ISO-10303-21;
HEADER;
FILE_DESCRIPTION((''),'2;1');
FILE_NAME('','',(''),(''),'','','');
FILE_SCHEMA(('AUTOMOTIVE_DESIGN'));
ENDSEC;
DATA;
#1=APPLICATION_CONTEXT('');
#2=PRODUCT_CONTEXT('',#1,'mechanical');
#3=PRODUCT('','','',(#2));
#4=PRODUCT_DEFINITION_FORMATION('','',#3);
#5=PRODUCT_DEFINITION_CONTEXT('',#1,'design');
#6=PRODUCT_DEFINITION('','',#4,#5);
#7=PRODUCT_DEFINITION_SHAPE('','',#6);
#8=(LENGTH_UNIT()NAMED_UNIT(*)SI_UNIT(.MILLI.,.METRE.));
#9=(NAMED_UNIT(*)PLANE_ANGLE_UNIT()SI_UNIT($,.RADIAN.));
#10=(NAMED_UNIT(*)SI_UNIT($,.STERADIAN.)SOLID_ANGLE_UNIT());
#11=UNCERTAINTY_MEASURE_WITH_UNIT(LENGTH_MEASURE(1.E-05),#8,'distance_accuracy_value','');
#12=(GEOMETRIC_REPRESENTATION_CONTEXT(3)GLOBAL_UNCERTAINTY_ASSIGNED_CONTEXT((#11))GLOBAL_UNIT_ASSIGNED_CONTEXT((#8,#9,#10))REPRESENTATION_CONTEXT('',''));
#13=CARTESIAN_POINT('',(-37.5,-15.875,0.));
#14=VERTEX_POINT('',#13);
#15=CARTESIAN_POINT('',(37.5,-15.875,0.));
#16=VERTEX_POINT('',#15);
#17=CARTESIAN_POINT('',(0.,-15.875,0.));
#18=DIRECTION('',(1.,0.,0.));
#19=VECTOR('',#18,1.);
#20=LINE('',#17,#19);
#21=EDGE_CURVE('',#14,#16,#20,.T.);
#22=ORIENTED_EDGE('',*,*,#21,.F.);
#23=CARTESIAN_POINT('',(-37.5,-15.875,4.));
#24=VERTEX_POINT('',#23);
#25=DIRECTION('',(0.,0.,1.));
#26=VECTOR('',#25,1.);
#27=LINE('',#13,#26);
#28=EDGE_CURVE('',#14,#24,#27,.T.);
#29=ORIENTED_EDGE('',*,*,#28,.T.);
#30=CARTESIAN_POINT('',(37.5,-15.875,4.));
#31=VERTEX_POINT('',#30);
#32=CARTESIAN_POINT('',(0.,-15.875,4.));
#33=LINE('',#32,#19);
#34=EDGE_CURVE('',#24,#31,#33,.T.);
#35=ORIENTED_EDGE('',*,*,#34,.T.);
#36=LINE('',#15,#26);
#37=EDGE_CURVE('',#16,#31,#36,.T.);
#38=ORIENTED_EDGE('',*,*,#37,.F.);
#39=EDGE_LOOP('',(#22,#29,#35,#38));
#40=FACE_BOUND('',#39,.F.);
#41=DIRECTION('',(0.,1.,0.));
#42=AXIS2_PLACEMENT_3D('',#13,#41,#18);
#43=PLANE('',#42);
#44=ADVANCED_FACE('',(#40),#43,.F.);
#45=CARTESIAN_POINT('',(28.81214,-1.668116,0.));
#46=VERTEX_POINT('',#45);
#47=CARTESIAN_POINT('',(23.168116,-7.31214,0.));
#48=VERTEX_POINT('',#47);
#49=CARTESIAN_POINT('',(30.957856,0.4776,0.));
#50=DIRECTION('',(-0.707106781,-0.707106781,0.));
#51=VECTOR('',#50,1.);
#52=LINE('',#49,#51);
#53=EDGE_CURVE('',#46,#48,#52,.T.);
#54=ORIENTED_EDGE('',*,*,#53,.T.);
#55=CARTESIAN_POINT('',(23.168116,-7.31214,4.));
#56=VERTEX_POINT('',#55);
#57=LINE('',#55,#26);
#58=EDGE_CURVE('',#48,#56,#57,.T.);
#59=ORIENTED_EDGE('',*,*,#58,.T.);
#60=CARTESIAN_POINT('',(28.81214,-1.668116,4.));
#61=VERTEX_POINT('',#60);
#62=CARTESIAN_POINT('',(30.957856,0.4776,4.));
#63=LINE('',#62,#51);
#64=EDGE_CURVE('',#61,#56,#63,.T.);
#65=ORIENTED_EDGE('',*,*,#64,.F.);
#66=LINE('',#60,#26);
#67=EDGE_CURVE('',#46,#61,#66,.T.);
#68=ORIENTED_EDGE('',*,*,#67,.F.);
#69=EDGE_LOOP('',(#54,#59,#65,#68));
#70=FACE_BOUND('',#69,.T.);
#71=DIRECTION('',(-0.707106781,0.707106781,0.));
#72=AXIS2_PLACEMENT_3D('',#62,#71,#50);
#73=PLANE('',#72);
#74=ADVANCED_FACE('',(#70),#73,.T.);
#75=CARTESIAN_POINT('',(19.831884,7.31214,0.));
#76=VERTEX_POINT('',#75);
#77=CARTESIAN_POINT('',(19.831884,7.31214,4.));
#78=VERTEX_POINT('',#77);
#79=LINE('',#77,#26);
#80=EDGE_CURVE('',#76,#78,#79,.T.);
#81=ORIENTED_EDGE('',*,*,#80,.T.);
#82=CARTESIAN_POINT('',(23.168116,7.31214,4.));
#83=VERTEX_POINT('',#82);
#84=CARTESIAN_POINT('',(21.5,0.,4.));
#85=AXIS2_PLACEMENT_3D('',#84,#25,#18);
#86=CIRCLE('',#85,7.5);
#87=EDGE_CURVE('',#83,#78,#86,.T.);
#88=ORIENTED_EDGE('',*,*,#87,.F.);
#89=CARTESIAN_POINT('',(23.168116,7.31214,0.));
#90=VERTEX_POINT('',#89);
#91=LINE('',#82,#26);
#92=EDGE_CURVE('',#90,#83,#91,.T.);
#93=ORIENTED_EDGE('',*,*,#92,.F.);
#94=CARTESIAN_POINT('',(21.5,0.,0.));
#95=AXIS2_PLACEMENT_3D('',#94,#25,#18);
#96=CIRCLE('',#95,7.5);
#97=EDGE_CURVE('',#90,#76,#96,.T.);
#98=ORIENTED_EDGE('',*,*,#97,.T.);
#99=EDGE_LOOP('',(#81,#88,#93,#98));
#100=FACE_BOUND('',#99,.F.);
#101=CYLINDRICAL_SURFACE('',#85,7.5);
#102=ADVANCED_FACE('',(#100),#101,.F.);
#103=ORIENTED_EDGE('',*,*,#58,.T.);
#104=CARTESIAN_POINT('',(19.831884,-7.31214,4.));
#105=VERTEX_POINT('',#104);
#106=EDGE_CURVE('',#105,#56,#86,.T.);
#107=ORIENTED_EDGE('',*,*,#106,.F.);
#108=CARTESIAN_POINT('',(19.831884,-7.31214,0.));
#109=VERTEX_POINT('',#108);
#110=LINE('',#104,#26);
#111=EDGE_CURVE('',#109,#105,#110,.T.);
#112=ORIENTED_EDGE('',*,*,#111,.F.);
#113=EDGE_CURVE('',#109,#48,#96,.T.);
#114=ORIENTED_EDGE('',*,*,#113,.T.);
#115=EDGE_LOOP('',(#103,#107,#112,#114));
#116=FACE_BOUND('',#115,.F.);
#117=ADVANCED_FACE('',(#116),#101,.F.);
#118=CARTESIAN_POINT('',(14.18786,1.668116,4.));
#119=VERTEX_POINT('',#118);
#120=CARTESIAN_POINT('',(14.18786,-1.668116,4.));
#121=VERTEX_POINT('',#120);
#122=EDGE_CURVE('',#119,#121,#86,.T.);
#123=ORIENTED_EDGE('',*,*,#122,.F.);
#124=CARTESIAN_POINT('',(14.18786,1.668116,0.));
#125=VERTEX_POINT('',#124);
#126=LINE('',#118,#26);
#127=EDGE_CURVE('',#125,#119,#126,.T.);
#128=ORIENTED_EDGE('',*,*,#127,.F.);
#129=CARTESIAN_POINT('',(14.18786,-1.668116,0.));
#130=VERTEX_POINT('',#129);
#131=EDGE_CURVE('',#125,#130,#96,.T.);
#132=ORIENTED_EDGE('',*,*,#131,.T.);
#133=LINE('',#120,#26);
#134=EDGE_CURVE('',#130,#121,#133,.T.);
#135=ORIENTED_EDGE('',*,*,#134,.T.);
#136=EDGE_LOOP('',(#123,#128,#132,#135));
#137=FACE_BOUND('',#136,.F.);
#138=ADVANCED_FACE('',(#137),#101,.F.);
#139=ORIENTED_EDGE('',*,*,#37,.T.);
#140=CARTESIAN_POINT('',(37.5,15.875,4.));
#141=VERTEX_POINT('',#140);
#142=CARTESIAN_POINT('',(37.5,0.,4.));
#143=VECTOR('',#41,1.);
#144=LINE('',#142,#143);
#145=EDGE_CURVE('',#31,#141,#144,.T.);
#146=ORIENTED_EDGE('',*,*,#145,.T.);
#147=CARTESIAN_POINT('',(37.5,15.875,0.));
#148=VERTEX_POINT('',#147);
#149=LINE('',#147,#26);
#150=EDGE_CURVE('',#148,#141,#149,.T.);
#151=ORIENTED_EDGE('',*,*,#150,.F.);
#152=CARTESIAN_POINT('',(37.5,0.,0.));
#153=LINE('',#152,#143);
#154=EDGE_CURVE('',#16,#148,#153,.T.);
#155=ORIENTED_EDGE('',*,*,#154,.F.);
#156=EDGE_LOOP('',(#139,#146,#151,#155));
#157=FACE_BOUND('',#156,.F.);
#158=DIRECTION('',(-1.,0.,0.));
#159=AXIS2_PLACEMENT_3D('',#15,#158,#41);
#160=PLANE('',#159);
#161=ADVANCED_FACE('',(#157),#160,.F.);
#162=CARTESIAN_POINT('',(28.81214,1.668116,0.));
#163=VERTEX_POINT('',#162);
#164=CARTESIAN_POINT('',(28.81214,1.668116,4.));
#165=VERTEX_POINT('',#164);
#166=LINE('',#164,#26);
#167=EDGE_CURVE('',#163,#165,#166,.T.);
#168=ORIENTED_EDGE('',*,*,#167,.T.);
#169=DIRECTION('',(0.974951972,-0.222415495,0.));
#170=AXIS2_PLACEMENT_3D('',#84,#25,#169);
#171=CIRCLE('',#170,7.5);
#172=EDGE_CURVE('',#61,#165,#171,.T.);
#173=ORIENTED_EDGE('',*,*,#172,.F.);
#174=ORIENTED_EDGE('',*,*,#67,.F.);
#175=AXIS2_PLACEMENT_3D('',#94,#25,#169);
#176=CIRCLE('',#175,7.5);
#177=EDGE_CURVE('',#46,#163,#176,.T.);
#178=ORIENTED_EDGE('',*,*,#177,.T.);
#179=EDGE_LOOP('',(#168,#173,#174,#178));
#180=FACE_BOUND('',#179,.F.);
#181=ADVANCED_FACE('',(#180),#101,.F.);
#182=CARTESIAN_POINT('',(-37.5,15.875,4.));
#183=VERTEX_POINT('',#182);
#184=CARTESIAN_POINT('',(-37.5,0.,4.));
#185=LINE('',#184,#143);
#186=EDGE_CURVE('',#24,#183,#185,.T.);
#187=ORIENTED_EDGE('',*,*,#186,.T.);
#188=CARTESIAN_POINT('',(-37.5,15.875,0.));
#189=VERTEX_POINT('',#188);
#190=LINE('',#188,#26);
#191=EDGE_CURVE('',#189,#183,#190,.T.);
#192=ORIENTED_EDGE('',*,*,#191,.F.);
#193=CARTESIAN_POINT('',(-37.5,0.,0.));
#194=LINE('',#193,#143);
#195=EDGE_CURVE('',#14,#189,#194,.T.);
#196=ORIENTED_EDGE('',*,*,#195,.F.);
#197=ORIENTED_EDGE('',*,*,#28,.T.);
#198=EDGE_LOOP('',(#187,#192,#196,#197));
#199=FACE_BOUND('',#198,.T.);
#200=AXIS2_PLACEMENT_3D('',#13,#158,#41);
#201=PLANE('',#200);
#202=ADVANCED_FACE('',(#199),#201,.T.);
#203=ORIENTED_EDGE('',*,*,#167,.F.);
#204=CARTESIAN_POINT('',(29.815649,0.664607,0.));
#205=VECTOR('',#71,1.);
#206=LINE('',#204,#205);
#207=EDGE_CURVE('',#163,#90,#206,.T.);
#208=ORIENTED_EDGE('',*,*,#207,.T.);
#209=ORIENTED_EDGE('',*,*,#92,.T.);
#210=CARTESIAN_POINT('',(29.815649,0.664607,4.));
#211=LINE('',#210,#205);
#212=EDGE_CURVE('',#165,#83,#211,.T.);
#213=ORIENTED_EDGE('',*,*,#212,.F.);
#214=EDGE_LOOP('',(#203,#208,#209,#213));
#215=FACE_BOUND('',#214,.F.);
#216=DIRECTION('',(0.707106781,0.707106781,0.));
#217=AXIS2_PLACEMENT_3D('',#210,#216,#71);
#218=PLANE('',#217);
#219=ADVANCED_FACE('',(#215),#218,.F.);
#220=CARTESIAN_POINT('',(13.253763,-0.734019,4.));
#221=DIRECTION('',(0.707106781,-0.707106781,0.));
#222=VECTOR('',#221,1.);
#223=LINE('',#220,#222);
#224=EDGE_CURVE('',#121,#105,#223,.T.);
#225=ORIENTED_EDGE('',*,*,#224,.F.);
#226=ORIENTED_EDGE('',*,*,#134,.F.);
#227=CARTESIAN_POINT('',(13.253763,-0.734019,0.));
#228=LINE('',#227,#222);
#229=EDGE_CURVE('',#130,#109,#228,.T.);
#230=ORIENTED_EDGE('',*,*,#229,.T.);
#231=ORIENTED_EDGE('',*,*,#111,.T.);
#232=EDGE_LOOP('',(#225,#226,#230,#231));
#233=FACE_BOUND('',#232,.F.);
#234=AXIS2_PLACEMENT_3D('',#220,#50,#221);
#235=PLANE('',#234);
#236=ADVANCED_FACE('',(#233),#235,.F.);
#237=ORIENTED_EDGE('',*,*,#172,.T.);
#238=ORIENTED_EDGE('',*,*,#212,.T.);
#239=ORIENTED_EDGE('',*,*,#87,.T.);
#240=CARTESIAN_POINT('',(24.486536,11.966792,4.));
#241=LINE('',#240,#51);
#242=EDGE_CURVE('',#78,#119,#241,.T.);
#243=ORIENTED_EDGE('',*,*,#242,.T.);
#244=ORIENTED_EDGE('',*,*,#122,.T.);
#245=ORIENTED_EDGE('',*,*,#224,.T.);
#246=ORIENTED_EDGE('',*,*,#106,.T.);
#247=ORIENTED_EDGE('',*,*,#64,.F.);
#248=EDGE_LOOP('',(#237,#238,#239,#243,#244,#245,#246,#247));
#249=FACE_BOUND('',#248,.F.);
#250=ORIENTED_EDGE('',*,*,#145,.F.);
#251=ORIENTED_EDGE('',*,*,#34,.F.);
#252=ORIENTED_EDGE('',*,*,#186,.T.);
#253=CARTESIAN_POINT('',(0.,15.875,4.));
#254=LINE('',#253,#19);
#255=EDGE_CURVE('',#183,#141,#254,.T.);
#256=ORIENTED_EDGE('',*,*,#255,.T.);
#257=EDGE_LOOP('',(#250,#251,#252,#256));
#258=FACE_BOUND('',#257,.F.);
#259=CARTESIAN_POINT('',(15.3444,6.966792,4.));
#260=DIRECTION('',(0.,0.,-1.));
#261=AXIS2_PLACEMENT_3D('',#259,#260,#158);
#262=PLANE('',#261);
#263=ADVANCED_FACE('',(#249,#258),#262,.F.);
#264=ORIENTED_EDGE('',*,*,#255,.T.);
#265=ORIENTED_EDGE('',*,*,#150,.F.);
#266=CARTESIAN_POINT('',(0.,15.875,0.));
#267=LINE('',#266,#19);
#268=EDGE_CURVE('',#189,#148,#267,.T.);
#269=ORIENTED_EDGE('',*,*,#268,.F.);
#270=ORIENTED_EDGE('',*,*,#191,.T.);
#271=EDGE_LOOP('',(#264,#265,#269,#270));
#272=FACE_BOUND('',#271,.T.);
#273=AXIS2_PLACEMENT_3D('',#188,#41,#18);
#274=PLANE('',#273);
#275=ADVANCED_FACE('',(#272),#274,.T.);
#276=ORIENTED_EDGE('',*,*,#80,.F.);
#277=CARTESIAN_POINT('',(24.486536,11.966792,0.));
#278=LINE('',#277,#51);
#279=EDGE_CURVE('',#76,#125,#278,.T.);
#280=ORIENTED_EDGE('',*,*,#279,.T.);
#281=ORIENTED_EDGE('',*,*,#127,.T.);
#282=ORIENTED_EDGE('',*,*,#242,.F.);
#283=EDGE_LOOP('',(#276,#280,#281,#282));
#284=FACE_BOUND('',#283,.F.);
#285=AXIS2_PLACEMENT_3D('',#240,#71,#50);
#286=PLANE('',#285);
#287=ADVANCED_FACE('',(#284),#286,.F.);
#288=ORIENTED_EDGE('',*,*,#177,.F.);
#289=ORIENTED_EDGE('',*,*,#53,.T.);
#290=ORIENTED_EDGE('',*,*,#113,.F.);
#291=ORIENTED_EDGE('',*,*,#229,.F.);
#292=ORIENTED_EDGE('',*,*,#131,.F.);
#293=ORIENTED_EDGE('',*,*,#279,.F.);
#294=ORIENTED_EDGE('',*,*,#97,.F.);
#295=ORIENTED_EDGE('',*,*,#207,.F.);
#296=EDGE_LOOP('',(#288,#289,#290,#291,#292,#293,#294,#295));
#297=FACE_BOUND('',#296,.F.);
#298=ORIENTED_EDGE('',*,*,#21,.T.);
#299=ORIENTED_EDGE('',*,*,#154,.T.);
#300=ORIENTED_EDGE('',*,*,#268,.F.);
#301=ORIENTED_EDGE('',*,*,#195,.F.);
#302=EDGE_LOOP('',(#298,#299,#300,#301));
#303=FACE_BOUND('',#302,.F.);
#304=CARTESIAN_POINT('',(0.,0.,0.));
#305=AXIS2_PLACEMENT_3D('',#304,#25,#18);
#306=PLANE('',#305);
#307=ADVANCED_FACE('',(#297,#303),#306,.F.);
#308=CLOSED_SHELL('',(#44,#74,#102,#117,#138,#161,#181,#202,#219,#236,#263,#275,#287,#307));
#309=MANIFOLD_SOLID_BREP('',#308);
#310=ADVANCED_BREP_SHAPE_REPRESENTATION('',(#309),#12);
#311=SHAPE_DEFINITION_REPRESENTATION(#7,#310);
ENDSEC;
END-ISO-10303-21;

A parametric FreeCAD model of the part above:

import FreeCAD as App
import Part
import Sketcher


def add_polygon(sketch, points):
    """Adds a closed chain of lines whose ends are joined by coincident constraints."""
    first, n = sketch.GeometryCount, len(points)
    for a, b in zip(points, points[1:] + points[:1]):
        sketch.addGeometry(Part.LineSegment(App.Vector(*a, 0), App.Vector(*b, 0)), False)
    for i in range(n):
        sketch.addConstraint(Sketcher.Constraint("Coincident", first + i, 2, first + (i + 1) % n, 1))

doc = App.newDocument("Part")
body = doc.addObject("PartDesign::Body", "Body")

sketch1 = doc.addObject("Sketcher::SketchObject", "Sketch")
body.addObject(sketch1)
sketch1.AttachmentSupport = (doc.XY_Plane, [""])
sketch1.MapMode = "FlatFace"
add_polygon(sketch1, [(-37.5, 15.875), (-37.5, -15.875), (37.5, -15.875), (37.5, 15.875)])
sketch1.addConstraint([
    Sketcher.Constraint("Vertical", 0),
    Sketcher.Constraint("Horizontal", 1),
    Sketcher.Constraint("Vertical", 2),
    Sketcher.Constraint("Horizontal", 3),
    Sketcher.Constraint("Symmetric", 0, 2, 2, 2, -1, 1),
    Sketcher.Constraint("DistanceX", 1, 1, 1, 2, 75.0),
    Sketcher.Constraint("DistanceY", 0, 2, 0, 1, 31.75),
])
pad1 = doc.addObject("PartDesign::Pad", "Pad")
body.addObject(pad1)
pad1.Profile = sketch1
pad1.Length = 4

sketch2 = doc.addObject("Sketcher::SketchObject", "Sketch001")
body.addObject(sketch2)
sketch2.AttachmentSupport = (doc.XY_Plane, [""])
sketch2.MapMode = "FlatFace"
sketch2.AttachmentOffset = App.Placement(App.Vector(0, 0, 4), App.Rotation())
sketch2.addGeometry(Part.Circle(App.Vector(21.5, 0, 0), App.Vector(0, 0, 1), 7.5), False)
sketch2.addConstraint([
    Sketcher.Constraint("PointOnObject", 0, 3, -1),
    Sketcher.Constraint("Diameter", 0, 15.0),
    Sketcher.Constraint("DistanceX", -1, 1, 0, 3, 21.5),
])
pocket1 = doc.addObject("PartDesign::Pocket", "Pocket")
body.addObject(pocket1)
pocket1.Profile = sketch2
pocket1.Type = "ThroughAll"

sketch3 = doc.addObject("Sketcher::SketchObject", "Sketch002")
body.addObject(sketch3)
sketch3.AttachmentSupport = (doc.XY_Plane, [""])
sketch3.MapMode = "FlatFace"
sketch3.AttachmentOffset = App.Placement(App.Vector(0, 0, 4), App.Rotation())
add_polygon(sketch3, [(10.3444, -2.175344), (24.486536, 11.966792), (10.3444, 11.966792)])
add_polygon(sketch3, [(21.707865, 8.772391), (29.815649, 0.664607), (34.469826, 11.738337)])
add_polygon(sketch3, [(30.957856, 0.4776), (22.4028, -8.077456), (35.779438, -11.627933)])
add_polygon(sketch3, [(21.279048, -8.759304), (13.253763, -0.734019), (7.24554, -12.506914)])
sketch3.addConstraint([
    Sketcher.Constraint("Horizontal", 1),
    Sketcher.Constraint("Vertical", 2),
    Sketcher.Constraint("Perpendicular", 0, 3),
    Sketcher.Constraint("Perpendicular", 3, 6),
    Sketcher.Constraint("Perpendicular", 6, 9),
    Sketcher.Constraint("Equal", 1, 2),
    Sketcher.Constraint("Distance", 0, 20.000001),
    Sketcher.Constraint("DistanceX", -1, 1, 1, 2, 10.3444),
    Sketcher.Constraint("DistanceX", -1, 1, 6, 2, 22.4028),
    Sketcher.Constraint("DistanceY", -1, 1, 8, 2, 0.4776),
    Sketcher.Constraint("DistanceY", 5, 2, 0, 2, 3.194401),
    Sketcher.Constraint("DistanceX", 0, 2, 7, 2, 11.292902),
    Sketcher.Constraint("DistanceX", 11, 2, 3, 2, 8.536601),
    Sketcher.Constraint("Distance", 3, 11.466138),
    Sketcher.Constraint("Distance", 4, 12.01203),
    Sketcher.Constraint("Distance", 5, 13.102079),
    Sketcher.Constraint("Distance", 7, 13.83981),
    Sketcher.Constraint("Distance", 8, 13.03041),
    Sketcher.Constraint("DistanceX", -1, 1, 3, 2, 29.815649),
    Sketcher.Constraint("DistanceY", -1, 1, 5, 2, 8.772391),
    Sketcher.Constraint("DistanceY", 9, 2, -1, 1, 0.734019),
    Sketcher.Constraint("DistanceX", -1, 1, 10, 2, 7.24554),
    Sketcher.Constraint("DistanceY", 10, 2, 2, 2, 10.33157),
    Sketcher.Constraint("DistanceY", 11, 2, 6, 2, 0.681848),
])
pad2 = doc.addObject("PartDesign::Pad", "Pad001")
body.addObject(pad2)
pad2.Profile = sketch3
pad2.Length = 4
pad2.Reversed = True

doc.recompute()
